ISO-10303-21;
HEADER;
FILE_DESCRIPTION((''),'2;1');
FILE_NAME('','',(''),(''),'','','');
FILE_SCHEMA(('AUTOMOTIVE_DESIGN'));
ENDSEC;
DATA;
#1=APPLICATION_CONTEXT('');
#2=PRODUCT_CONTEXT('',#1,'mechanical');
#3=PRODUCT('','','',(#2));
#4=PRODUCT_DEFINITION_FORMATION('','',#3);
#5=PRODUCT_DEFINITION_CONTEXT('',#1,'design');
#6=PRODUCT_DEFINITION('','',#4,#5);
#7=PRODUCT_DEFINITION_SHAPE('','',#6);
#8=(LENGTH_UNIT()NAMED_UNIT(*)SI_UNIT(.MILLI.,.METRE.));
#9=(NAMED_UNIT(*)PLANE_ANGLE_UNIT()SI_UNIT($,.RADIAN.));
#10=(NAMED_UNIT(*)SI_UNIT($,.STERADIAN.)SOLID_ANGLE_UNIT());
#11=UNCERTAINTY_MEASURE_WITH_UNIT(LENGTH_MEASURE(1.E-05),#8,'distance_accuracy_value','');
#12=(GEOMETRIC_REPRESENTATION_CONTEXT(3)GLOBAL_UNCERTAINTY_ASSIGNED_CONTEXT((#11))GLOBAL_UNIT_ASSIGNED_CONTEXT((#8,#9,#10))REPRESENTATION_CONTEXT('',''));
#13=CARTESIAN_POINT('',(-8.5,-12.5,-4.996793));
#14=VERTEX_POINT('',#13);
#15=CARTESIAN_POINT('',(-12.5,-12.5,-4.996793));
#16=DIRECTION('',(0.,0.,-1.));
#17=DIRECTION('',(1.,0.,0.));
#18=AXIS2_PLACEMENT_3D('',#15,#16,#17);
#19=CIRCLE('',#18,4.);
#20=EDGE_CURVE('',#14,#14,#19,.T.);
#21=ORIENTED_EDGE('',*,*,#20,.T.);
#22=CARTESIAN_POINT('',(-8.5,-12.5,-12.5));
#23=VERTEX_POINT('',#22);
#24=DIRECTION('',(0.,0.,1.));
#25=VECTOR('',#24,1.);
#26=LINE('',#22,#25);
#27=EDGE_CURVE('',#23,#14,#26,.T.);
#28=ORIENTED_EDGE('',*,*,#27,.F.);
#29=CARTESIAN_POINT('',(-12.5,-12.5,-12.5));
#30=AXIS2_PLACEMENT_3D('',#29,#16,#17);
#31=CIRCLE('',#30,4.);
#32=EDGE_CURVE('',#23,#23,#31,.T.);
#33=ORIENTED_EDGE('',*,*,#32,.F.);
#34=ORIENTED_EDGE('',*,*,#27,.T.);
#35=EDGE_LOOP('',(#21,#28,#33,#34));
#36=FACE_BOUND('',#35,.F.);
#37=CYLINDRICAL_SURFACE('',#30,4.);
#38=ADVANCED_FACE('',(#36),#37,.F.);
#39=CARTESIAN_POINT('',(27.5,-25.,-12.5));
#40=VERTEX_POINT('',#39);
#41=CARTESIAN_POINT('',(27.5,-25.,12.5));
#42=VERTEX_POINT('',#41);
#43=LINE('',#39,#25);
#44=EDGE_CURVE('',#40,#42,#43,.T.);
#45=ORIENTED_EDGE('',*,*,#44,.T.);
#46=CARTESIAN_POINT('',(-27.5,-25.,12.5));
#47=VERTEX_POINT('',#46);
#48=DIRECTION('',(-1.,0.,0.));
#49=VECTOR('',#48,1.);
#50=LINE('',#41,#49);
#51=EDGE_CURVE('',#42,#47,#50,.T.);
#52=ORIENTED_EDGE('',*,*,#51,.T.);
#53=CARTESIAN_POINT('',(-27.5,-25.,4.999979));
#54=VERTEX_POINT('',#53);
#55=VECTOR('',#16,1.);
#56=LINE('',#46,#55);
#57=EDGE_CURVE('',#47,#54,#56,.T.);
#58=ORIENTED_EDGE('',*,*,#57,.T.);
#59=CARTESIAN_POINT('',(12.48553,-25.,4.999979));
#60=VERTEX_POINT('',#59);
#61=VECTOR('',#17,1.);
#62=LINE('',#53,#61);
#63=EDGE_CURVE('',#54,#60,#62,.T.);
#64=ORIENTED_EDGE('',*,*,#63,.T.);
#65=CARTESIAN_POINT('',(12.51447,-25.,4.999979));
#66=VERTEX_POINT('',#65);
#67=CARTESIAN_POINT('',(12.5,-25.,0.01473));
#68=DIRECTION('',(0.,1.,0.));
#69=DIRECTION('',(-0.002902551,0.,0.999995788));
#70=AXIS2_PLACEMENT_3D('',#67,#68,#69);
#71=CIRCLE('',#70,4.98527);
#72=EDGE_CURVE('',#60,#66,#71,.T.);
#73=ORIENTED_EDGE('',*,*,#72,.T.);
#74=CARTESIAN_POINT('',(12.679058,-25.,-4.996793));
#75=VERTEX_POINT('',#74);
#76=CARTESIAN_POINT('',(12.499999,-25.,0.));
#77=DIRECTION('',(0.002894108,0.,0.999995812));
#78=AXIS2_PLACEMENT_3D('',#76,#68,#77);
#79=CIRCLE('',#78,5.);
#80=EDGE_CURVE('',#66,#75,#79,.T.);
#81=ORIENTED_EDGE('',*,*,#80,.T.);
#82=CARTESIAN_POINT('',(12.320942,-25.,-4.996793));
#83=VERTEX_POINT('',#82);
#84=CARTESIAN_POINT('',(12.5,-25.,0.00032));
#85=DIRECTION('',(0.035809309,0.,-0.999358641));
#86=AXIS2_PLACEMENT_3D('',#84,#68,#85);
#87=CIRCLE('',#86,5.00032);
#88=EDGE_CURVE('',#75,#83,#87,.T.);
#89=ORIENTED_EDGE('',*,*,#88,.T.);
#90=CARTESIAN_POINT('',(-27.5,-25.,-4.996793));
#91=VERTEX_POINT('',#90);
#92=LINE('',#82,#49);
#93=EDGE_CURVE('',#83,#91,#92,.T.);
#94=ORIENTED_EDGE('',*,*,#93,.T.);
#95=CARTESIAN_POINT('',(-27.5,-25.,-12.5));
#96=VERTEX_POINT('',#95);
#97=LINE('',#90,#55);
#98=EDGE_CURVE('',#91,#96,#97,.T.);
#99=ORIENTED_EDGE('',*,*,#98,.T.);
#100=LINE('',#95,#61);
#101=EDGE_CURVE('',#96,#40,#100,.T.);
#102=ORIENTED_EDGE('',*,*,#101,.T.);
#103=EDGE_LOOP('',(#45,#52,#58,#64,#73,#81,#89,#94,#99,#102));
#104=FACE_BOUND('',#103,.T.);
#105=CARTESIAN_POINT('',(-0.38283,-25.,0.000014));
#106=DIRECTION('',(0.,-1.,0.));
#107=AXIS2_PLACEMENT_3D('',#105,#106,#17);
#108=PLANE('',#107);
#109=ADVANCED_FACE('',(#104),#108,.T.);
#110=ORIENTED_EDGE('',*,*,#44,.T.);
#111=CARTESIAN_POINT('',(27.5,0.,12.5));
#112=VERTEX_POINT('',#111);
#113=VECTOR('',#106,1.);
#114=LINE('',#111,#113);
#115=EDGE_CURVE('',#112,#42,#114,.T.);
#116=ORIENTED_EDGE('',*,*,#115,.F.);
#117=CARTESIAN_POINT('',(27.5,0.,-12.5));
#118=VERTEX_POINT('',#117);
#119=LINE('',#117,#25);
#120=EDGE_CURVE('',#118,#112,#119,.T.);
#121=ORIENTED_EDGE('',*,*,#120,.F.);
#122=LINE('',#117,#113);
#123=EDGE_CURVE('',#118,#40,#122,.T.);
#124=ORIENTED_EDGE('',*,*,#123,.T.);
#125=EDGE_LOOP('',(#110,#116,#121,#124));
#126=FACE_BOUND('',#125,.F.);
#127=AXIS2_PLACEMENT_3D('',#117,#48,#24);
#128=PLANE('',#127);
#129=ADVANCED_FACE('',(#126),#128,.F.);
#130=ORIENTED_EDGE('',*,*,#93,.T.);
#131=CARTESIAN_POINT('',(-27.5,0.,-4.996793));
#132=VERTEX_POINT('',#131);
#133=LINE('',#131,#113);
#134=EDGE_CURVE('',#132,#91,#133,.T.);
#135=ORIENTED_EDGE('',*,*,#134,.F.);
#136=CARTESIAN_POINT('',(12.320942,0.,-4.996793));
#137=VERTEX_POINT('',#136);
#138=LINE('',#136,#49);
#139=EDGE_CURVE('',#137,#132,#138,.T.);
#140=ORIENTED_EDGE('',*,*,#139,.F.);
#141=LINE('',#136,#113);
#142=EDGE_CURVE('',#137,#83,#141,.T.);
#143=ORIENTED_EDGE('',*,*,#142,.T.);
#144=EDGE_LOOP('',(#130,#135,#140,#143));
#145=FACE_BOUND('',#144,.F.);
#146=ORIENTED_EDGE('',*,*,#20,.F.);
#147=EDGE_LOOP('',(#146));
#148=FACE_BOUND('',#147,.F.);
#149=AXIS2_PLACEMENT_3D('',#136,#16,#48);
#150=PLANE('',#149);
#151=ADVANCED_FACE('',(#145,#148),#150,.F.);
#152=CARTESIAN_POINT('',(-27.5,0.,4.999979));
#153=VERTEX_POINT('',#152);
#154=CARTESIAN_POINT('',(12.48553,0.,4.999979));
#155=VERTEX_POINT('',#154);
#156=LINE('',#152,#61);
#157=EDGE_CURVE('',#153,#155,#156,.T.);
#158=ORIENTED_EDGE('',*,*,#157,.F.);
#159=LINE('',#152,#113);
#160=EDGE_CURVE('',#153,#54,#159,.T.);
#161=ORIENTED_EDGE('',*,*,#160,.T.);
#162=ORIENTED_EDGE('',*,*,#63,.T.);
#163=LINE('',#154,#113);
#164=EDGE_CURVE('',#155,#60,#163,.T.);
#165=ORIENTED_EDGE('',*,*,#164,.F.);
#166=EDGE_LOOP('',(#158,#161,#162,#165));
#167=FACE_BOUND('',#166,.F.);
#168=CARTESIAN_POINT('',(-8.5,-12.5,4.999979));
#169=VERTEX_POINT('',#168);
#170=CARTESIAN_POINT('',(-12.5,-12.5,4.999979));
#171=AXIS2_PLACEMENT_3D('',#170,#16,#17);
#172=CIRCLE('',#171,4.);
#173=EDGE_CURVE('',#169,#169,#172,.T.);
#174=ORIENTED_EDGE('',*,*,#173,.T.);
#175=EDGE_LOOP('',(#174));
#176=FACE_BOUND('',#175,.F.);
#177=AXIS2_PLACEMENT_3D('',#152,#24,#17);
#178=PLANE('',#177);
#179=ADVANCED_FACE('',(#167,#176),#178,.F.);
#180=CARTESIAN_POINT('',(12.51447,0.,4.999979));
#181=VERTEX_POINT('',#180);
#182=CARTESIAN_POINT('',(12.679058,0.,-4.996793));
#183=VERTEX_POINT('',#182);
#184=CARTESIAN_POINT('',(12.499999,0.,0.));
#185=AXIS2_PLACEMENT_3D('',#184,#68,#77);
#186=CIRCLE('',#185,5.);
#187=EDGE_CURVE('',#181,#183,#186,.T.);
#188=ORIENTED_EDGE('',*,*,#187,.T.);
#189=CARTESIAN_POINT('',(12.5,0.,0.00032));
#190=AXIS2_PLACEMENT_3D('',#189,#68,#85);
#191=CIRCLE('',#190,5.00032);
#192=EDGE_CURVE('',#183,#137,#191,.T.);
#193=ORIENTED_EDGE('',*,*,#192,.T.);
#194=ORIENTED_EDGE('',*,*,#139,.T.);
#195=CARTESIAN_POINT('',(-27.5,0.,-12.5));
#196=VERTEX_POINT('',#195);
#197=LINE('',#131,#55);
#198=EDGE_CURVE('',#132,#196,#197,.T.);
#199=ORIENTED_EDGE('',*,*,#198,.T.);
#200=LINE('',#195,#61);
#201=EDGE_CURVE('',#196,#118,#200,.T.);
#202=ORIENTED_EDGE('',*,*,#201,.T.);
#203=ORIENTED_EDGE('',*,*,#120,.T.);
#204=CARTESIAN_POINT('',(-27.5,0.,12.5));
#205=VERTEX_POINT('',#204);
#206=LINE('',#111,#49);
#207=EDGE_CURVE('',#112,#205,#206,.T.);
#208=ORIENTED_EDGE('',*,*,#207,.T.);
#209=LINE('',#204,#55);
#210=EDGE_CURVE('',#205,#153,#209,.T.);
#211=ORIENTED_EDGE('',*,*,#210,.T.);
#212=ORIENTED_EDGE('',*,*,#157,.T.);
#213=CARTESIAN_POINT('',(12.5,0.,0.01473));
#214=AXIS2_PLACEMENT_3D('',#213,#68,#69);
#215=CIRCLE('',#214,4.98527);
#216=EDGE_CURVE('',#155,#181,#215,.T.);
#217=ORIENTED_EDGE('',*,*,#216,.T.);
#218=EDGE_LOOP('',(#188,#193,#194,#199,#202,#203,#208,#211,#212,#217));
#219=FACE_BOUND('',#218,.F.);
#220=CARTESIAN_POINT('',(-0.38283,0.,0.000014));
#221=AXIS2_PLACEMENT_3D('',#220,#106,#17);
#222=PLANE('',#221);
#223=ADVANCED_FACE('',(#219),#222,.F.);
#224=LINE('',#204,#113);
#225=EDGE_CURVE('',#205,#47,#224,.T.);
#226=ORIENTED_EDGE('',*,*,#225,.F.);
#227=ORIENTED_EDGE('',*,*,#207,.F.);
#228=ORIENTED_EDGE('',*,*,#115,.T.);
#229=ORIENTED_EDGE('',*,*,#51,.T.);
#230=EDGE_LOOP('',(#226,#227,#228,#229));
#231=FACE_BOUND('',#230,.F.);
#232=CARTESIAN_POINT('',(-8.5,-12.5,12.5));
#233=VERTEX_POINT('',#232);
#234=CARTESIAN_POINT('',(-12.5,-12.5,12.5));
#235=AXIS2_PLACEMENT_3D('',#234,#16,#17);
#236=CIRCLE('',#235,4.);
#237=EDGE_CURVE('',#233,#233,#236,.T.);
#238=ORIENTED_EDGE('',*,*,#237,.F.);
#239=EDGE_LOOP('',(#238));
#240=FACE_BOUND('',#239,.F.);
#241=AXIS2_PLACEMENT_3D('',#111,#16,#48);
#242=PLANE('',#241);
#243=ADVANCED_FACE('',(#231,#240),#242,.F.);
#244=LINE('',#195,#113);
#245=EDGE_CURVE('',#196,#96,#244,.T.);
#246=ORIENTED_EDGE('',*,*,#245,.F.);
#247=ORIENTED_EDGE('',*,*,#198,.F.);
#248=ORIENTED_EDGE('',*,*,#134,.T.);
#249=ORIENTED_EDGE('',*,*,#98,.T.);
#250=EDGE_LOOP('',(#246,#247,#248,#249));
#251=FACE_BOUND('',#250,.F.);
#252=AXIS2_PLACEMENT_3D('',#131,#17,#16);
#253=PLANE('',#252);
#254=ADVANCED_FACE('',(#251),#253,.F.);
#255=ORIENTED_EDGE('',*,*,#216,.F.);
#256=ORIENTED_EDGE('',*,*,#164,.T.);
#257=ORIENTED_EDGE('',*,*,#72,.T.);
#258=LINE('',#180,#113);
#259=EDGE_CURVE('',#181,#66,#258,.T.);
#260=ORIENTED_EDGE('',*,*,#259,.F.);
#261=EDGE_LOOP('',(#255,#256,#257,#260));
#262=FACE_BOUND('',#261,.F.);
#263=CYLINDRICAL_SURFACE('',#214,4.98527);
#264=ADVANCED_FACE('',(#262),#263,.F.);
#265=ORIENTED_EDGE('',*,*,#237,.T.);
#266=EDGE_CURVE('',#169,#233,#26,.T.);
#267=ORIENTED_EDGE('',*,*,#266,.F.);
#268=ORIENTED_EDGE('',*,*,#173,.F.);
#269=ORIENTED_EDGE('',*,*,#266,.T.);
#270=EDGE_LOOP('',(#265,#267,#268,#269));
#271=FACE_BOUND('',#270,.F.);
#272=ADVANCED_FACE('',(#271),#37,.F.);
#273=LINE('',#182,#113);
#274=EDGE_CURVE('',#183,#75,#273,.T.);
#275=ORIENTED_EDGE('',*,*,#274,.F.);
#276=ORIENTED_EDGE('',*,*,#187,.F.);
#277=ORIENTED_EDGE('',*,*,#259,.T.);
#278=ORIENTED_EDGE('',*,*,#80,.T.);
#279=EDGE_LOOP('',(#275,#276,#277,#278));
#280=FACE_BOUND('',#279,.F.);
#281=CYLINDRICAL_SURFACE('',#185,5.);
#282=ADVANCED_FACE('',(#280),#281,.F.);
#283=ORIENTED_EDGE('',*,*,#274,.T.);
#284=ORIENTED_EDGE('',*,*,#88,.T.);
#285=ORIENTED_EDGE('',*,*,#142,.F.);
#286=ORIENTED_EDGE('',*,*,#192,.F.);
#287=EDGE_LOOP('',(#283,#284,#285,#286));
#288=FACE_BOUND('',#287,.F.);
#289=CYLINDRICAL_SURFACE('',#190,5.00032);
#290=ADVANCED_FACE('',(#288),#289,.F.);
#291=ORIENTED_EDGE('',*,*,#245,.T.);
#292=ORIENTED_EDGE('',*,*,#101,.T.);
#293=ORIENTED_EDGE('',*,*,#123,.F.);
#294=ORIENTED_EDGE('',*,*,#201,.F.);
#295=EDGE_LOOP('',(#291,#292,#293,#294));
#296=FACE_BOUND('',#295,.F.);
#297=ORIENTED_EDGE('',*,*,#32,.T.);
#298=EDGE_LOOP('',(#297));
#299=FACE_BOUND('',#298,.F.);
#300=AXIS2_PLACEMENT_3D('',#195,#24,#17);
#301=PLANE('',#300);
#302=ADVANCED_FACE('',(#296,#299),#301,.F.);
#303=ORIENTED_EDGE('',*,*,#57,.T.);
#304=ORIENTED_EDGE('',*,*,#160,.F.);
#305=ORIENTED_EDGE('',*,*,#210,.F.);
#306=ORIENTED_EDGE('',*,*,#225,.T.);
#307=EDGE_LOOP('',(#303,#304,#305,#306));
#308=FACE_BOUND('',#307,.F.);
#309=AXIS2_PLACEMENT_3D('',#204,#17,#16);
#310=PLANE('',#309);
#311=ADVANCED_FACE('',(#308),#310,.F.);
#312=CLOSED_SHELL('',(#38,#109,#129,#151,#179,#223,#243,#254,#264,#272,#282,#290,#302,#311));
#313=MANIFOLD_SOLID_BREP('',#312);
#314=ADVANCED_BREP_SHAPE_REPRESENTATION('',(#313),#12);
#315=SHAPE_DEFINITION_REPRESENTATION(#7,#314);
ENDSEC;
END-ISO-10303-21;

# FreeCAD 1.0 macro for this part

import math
import FreeCAD as App
import Part
import Sketcher

V = App.Vector
Q = App.Units.Quantity

doc = App.newDocument("Part")
params = doc.addObject("Spreadsheet::Sheet", "Params")
for row, (alias, value) in enumerate([
    ("sketch1_radius", "5 mm"),
    ("sketch1_width", "55 mm"),
    ("sketch1_height", "25 mm"),
    ("pad1_length", "25 mm"),
    ("sketch2_diameter", "8 mm"),
    ("pocket1_length", "25 mm"),
], start=1):
    params.set(f"A{row}", alias)
    params.set(f"B{row}", "=" + value)
    params.setAlias(f"B{row}", alias)

body = doc.addObject("PartDesign::Body", "Body")

# Sketch on XZ plane
sketch1 = body.newObject("Sketcher::SketchObject", "Sketch")
sketch1.AttachmentSupport = (doc.getObject("XZ_Plane"), [""])
sketch1.MapMode = "FlatFace"
sketch1.addGeometry([
    Part.LineSegment(V(27.5, 12.5, 0), V(-27.5, 12.5, 0)),  # 0
    Part.LineSegment(V(-27.5, 12.5, 0), V(-27.5, 4.999979, 0)),  # 1
    Part.LineSegment(V(-27.5, 4.999979, 0), V(12.48553, 4.999979, 0)),  # 2
    Part.ArcOfCircle(Part.Circle(V(12.5, 0.01473, 0), V(0, 0, 1), 4.98527), math.radians(89.833696), math.radians(90.166304)),  # 3
    Part.ArcOfCircle(Part.Circle(V(12.499999, 0, 0), V(0, 0, 1), 5), math.radians(-87.947701), math.radians(89.83418)),  # 4
    Part.ArcOfCircle(Part.Circle(V(12.5, 0.00032, 0), V(0, 0, 1), 5.00032), math.radians(-92.052161), math.radians(-87.947839)),  # 5
    Part.LineSegment(V(12.320942, -4.996793, 0), V(-27.5, -4.996793, 0)),  # 6
    Part.LineSegment(V(-27.5, -4.996793, 0), V(-27.5, -12.5, 0)),  # 7
    Part.LineSegment(V(-27.5, -12.5, 0), V(27.5, -12.5, 0)),  # 8
    Part.LineSegment(V(27.5, -12.5, 0), V(27.5, 12.5, 0)),  # 9
], False)
sketch1.addConstraint([
    Sketcher.Constraint("Coincident", 0, 2, 1, 1),
    Sketcher.Constraint("Coincident", 1, 2, 2, 1),
    Sketcher.Constraint("Coincident", 2, 2, 3, 2),
    Sketcher.Constraint("Coincident", 3, 1, 4, 2),
    Sketcher.Constraint("Coincident", 4, 1, 5, 2),
    Sketcher.Constraint("Coincident", 5, 1, 6, 1),
    Sketcher.Constraint("Coincident", 6, 2, 7, 1),
    Sketcher.Constraint("Coincident", 7, 2, 8, 1),
    Sketcher.Constraint("Coincident", 8, 2, 9, 1),
    Sketcher.Constraint("Coincident", 9, 2, 0, 1),
    Sketcher.Constraint("Horizontal", 0),
    Sketcher.Constraint("Vertical", 1),
    Sketcher.Constraint("Horizontal", 2),
    Sketcher.Constraint("Horizontal", 6),
    Sketcher.Constraint("Vertical", 7),
    Sketcher.Constraint("Horizontal", 8),
    Sketcher.Constraint("Vertical", 9),
    Sketcher.Constraint("Symmetric", 0, 2, 8, 2, -1, 1),
    Sketcher.Constraint("PointOnObject", 4, 3, -1),
    Sketcher.Constraint("Horizontal", 2, 2, 3, 1),
    Sketcher.Constraint("Horizontal", 4, 1, 5, 1),
    Sketcher.Constraint("Vertical", 3, 3, 4, 3),
    Sketcher.Constraint("Vertical", 4, 3, 5, 3),
    Sketcher.Constraint("Vertical", 1, 2, 6, 2),
    Sketcher.Constraint("Radius", 4, Q("5 mm")),
    Sketcher.Constraint("DistanceX", 0, 2, 0, 1, Q("55 mm")),
    Sketcher.Constraint("DistanceY", 9, 1, 9, 2, Q("25 mm")),
    Sketcher.Constraint("DistanceX", 0, 2, 3, 3, Q("40 mm")),
    Sketcher.Constraint("Radius", 3, Q("4.98527 mm")),
    Sketcher.Constraint("Radius", 5, Q("5.00032 mm")),
    Sketcher.Constraint("DistanceX", 2, 1, 2, 2, Q("39.98553 mm")),
    Sketcher.Constraint("DistanceX", 6, 2, 6, 1, Q("39.820942 mm")),
])
sketch1.setExpression("Constraints[24]", "Params.sketch1_radius")
sketch1.setExpression("Constraints[25]", "Params.sketch1_width")
sketch1.setExpression("Constraints[26]", "Params.sketch1_height")
pad1 = body.newObject("PartDesign::Pad", "Pad")
pad1.Profile = sketch1
pad1.setExpression("Length", "Params.pad1_length")

# Sketch on XY plane
sketch2 = body.newObject("Sketcher::SketchObject", "Sketch001")
sketch2.AttachmentSupport = (doc.getObject("XY_Plane"), [""])
sketch2.MapMode = "FlatFace"
sketch2.AttachmentOffset = App.Placement(V(0, 0, -12.5), App.Rotation())
sketch2.addGeometry(Part.Circle(V(-12.5, -12.5, 0), V(0, 0, 1), 4), False)
sketch2.addConstraint([
    Sketcher.Constraint("Diameter", 0, Q("8 mm")),
    Sketcher.Constraint("DistanceX", 0, 3, -1, 1, Q("12.5 mm")),
    Sketcher.Constraint("DistanceY", 0, 3, -1, 1, Q("12.5 mm")),
])
sketch2.setExpression("Constraints[0]", "Params.sketch2_diameter")
pocket1 = body.newObject("PartDesign::Pocket", "Pocket")
pocket1.Profile = sketch2
pocket1.setExpression("Length", "Params.pocket1_length")
pocket1.Reversed = True

doc.recompute()
